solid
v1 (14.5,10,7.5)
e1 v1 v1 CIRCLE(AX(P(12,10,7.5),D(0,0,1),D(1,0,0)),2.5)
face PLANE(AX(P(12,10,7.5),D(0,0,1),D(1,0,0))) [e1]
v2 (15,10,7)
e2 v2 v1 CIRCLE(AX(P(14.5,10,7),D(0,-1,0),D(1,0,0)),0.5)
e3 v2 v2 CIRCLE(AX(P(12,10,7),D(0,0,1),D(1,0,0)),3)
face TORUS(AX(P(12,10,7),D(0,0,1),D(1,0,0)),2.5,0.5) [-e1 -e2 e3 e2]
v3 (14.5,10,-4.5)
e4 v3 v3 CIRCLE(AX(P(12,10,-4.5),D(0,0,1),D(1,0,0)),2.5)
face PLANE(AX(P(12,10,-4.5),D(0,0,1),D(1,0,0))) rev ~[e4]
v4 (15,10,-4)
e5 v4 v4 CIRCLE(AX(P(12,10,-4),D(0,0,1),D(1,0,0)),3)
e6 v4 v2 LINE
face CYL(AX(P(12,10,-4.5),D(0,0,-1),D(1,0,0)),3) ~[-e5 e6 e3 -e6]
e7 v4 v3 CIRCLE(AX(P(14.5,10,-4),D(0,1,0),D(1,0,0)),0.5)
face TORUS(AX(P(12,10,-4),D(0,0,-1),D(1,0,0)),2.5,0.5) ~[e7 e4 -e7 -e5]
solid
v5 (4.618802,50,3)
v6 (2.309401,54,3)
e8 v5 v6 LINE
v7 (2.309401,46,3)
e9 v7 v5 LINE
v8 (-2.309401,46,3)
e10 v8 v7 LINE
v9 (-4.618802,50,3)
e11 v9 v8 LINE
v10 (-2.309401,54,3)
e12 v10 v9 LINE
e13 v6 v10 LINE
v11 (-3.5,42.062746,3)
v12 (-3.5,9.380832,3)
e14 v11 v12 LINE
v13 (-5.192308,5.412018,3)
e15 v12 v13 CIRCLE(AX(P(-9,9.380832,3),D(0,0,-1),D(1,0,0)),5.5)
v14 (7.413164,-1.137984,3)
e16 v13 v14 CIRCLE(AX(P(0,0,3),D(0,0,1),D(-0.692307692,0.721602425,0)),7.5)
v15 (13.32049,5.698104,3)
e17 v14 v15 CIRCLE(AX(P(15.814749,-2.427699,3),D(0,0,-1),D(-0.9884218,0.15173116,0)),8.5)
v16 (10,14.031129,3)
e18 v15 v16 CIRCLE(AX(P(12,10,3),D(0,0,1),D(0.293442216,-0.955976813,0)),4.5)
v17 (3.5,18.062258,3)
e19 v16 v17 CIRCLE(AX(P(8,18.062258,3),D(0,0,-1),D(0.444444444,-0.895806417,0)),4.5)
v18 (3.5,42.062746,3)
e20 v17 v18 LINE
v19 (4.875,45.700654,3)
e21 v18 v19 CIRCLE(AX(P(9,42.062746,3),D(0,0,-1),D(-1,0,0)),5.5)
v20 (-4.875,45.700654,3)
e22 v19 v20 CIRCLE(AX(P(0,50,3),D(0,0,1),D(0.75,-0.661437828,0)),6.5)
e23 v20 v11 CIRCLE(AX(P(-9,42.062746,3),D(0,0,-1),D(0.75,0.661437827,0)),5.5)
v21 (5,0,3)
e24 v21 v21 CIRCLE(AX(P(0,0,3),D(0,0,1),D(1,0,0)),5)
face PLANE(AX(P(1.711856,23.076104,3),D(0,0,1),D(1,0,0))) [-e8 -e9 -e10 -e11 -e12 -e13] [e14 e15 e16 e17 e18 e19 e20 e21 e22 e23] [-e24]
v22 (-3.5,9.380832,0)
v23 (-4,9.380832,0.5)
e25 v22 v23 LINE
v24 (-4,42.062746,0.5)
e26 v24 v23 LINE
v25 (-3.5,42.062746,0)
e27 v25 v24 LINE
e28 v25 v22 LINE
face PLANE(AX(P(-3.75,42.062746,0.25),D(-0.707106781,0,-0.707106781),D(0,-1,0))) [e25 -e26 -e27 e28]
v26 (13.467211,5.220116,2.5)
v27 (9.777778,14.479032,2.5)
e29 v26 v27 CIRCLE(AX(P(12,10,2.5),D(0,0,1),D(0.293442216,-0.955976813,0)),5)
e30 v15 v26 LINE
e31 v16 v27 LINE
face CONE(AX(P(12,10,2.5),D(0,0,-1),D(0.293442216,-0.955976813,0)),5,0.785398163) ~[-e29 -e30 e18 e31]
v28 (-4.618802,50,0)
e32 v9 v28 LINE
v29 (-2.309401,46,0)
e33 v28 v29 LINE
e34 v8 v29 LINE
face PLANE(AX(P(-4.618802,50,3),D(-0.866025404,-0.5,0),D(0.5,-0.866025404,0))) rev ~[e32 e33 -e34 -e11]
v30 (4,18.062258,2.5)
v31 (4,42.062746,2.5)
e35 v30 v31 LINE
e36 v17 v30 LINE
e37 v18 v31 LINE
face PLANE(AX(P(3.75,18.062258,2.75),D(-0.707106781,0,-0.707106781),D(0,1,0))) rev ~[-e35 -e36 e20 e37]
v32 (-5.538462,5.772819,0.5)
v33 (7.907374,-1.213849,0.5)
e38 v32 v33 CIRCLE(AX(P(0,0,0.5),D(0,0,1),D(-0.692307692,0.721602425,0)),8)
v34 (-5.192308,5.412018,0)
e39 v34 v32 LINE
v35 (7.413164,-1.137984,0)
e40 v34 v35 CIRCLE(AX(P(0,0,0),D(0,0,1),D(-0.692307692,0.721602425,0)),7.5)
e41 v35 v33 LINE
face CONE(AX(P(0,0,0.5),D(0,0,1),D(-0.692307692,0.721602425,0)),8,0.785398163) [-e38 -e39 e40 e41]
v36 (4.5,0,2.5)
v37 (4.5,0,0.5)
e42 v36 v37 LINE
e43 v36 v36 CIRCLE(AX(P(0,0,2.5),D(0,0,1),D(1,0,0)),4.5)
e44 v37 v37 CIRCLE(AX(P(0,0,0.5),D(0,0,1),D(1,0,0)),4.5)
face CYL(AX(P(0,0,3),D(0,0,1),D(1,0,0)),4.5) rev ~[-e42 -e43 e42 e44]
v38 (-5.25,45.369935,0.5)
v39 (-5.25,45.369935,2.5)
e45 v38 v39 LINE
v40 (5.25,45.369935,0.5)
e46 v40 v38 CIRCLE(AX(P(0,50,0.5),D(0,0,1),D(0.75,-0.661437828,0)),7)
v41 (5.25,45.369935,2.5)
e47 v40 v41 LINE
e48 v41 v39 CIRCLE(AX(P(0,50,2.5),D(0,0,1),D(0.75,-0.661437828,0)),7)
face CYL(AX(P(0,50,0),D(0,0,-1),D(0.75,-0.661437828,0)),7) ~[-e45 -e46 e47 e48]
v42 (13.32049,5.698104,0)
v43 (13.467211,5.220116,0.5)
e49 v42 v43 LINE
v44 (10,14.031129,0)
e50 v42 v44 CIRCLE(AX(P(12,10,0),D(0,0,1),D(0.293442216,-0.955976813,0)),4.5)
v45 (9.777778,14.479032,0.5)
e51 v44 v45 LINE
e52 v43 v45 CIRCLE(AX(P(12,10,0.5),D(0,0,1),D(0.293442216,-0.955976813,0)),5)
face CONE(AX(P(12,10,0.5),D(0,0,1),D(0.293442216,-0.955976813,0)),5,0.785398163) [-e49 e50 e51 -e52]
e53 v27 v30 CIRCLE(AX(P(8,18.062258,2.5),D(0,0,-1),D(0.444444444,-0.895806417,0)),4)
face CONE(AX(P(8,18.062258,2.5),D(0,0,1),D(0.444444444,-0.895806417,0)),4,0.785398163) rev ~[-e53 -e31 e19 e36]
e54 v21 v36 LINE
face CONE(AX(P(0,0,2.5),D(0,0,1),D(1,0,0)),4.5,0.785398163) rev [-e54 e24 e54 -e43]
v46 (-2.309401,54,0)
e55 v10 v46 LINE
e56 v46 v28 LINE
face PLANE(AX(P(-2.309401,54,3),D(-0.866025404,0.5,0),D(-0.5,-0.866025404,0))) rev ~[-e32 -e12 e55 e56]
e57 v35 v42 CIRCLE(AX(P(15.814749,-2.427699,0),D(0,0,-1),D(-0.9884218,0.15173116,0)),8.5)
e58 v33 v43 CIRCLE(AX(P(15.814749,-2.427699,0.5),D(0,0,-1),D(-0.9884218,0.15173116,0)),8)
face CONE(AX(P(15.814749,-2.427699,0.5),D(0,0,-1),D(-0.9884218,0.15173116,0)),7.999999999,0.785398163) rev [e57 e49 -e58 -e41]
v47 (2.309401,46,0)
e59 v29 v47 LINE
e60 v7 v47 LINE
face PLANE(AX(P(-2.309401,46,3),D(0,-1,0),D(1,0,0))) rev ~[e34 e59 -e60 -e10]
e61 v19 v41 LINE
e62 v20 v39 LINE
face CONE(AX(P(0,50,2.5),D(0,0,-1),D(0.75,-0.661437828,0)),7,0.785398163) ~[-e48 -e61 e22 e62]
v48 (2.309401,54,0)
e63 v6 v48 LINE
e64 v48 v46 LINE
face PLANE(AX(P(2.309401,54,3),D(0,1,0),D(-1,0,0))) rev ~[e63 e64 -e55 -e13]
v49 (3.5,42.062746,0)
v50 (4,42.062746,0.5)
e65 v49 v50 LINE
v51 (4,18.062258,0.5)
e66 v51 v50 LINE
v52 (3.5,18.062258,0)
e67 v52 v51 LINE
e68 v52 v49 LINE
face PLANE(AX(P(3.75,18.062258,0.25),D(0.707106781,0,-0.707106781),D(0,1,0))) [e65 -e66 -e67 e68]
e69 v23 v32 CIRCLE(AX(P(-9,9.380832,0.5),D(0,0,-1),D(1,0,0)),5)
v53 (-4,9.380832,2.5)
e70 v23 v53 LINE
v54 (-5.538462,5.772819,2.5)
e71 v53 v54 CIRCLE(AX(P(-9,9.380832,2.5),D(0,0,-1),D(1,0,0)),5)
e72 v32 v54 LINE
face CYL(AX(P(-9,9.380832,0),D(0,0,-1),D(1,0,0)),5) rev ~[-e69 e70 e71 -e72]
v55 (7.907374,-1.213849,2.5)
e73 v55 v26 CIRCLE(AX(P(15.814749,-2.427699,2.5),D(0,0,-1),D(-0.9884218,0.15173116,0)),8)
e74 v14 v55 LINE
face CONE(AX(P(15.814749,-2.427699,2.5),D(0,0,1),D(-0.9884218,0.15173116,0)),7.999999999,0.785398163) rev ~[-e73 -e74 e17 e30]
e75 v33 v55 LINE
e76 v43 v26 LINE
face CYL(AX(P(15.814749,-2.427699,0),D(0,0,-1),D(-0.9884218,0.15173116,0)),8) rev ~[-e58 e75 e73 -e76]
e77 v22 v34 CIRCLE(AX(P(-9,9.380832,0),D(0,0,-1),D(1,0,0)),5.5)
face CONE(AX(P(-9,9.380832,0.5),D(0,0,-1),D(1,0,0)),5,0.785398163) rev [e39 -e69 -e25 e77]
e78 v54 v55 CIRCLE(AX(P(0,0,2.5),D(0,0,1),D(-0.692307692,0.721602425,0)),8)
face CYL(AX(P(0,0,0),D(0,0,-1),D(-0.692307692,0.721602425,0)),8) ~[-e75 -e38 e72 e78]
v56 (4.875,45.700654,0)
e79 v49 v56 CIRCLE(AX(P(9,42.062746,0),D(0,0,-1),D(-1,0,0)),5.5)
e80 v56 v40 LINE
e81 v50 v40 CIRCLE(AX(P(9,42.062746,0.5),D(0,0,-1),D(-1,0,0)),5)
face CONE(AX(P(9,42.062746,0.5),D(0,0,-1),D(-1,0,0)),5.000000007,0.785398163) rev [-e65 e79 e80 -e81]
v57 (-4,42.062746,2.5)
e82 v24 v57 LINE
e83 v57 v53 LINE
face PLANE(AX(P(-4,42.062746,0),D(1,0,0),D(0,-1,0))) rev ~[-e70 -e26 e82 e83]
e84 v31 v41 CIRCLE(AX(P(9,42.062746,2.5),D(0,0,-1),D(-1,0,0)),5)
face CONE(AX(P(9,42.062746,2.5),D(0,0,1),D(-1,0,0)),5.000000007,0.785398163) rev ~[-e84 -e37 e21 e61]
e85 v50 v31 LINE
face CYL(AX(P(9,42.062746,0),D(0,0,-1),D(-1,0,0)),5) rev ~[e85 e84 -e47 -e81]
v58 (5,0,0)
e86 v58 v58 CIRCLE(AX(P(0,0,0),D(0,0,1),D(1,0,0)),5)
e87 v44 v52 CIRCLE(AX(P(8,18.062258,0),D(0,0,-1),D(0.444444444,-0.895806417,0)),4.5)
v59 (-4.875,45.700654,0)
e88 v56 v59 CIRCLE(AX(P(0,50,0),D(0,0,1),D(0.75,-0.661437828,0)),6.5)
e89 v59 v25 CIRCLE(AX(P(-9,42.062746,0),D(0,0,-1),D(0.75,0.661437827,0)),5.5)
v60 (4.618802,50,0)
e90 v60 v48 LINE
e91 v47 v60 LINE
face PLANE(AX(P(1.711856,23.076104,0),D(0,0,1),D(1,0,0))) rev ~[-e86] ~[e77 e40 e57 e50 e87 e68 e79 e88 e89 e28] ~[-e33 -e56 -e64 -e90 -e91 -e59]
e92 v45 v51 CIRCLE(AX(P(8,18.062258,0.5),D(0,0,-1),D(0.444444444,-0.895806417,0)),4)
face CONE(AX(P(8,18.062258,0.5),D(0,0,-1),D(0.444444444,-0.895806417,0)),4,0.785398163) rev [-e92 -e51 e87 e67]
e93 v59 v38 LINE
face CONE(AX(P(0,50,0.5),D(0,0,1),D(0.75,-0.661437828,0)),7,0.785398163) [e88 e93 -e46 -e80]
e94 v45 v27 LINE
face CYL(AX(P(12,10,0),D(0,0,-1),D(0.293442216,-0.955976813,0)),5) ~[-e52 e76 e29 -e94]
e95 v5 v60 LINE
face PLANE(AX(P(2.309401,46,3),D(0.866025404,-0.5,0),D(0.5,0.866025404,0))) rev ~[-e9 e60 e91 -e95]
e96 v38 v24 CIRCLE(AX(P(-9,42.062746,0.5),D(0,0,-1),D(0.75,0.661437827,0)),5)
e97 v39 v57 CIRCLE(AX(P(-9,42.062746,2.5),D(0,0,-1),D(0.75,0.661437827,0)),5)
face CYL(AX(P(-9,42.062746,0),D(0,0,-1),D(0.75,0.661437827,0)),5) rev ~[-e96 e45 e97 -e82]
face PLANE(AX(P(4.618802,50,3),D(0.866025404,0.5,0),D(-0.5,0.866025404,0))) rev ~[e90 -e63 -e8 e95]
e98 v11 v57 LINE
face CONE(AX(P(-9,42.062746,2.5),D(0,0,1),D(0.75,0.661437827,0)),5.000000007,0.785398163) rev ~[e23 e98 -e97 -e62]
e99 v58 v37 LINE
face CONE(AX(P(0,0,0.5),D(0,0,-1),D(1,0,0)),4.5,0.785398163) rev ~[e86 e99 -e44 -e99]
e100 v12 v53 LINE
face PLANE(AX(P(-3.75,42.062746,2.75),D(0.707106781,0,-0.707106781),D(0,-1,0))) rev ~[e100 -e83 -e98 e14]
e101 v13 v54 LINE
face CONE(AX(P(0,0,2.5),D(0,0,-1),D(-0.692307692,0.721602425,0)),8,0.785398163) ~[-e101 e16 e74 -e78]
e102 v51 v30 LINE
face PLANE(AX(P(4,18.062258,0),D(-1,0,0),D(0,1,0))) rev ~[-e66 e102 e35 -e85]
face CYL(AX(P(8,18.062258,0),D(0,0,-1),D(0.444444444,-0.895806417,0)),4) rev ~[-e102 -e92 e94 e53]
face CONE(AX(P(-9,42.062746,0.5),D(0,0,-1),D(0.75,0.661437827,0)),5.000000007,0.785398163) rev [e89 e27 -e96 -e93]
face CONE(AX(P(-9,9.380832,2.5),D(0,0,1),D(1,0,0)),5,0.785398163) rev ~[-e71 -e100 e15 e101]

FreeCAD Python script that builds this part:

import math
import FreeCAD as App
import Part
import Sketcher
from FreeCAD import Vector
Q = App.Units.Quantity


def edges_at(feature, points):
    """Names of the edges that pass closest to the given points."""
    edges = feature.Shape.Edges
    near = lambda p: min(range(len(edges)), key=lambda i: edges[i].distToShape(Part.Vertex(*p))[0])
    return sorted({f"Edge{near(p) + 1}" for p in points})


def add_polygon(sketch, points):
    """Adds a closed chain of lines whose ends are joined by coincident constraints."""
    first, n = sketch.GeometryCount, len(points)
    for a, b in zip(points, points[1:] + points[:1]):
        sketch.addGeometry(Part.LineSegment(App.Vector(*a, 0), App.Vector(*b, 0)), False)
    for i in range(n):
        sketch.addConstraint(Sketcher.Constraint("Coincident", first + i, 2, first + (i + 1) % n, 1))

doc = App.newDocument("Part")
body = doc.addObject("PartDesign::Body", "Body")

# Sketch on XY plane
sketch1 = body.newObject("Sketcher::SketchObject", "Sketch")
sketch1.AttachmentSupport = (doc.getObject("XY_Plane"), [""])
sketch1.MapMode = "FlatFace"
sketch1.addGeometry([
    Part.LineSegment(Vector(-4, 42.1, 0), Vector(-4, 9.4, 0)),  # 0
    Part.ArcOfCircle(Part.Circle(Vector(-9, 9.4, 0), Vector(0, 0, 1), 5), math.radians(-46), math.radians(0)),  # 1
    Part.ArcOfCircle(Part.Circle(Vector(0, 0, 0), Vector(0, 0, 1), 8), math.radians(134), math.radians(351)),  # 2
    Part.ArcOfCircle(Part.Circle(Vector(15.8, -2.4, 0), Vector(0, 0, 1), 8), math.radians(107), math.radians(171)),  # 3
    Part.ArcOfCircle(Part.Circle(Vector(12, 10, 0), Vector(0, 0, 1), 5), math.radians(-73), math.radians(116)),  # 4
    Part.ArcOfCircle(Part.Circle(Vector(8, 18.1, 0), Vector(0, 0, 1), 4), math.radians(180), math.radians(296)),  # 5
    Part.LineSegment(Vector(4, 18.1, 0), Vector(4, 42.1, 0)),  # 6
    Part.ArcOfCircle(Part.Circle(Vector(9, 42.1, 0), Vector(0, 0, 1), 5), math.radians(139), math.radians(180)),  # 7
    Part.ArcOfCircle(Part.Circle(Vector(0, 50, 0), Vector(0, 0, 1), 7), math.radians(-41), math.radians(221)),  # 8
    Part.ArcOfCircle(Part.Circle(Vector(-9, 42.1, 0), Vector(0, 0, 1), 5), math.radians(0), math.radians(41)),  # 9
], False)
sketch1.addConstraint([
    Sketcher.Constraint("Tangent", 0, 2, 1, 2),
    Sketcher.Constraint("Tangent", 1, 1, 2, 1),
    Sketcher.Constraint("Tangent", 2, 2, 3, 2),
    Sketcher.Constraint("Tangent", 3, 1, 4, 1),
    Sketcher.Constraint("Tangent", 4, 2, 5, 2),
    Sketcher.Constraint("Tangent", 5, 1, 6, 1),
    Sketcher.Constraint("Tangent", 6, 2, 7, 2),
    Sketcher.Constraint("Tangent", 7, 1, 8, 1),
    Sketcher.Constraint("Tangent", 8, 2, 9, 2),
    Sketcher.Constraint("Tangent", 9, 1, 0, 1),
    Sketcher.Constraint("Vertical", 0),
    Sketcher.Constraint("Vertical", 6),
    Sketcher.Constraint("Coincident", 2, 3, -1, 1),
    Sketcher.Constraint("Equal", 2, 3),
    Sketcher.Constraint("Equal", 1, 4),
    Sketcher.Constraint("Equal", 4, 7),
    Sketcher.Constraint("Equal", 7, 9),
    Sketcher.Constraint("Symmetric", 7, 3, 9, 3, -2),
    Sketcher.Constraint("Radius", 1, 5.0),
    Sketcher.Constraint("Radius", 2, 8.0),
    Sketcher.Constraint("Radius", 5, 4.0),
    Sketcher.Constraint("Radius", 8, 7.0),
    Sketcher.Constraint("DistanceX", 1, 3, -1, 1, 9.0),
    Sketcher.Constraint("DistanceX", -1, 1, 4, 3, 12.0),
    Sketcher.Constraint("DistanceY", -1, 1, 4, 3, 10.0),
    Sketcher.Constraint("DistanceY", -1, 1, 8, 3, 50.0),
])
pad1 = body.newObject("PartDesign::Pad", "Pad")
pad1.Profile = sketch1
pad1.Length = 3

# Sketch on XY plane
sketch2 = body.newObject("Sketcher::SketchObject", "Sketch001")
sketch2.AttachmentSupport = (doc.getObject("XY_Plane"), [""])
sketch2.MapMode = "FlatFace"
sketch2.AttachmentOffset = App.Placement(Vector(0, 0, 3), App.Rotation())
sketch2.addGeometry(Part.Circle(Vector(0, 0, 0), Vector(0, 0, 1), 4.5), False)  # 0
add_polygon(sketch2, [(4.6, 50), (2.3, 54), (-2.3, 54), (-4.6, 50), (-2.3, 46), (2.3, 46)])  # lines 1-6
sketch2.addConstraint([
    Sketcher.Constraint("Horizontal", 2),
    Sketcher.Constraint("Horizontal", 5),
    Sketcher.Constraint("Coincident", 0, 3, -1, 1),
    Sketcher.Constraint("Symmetric", 3, 2, 6, 2, -2),
    Sketcher.Constraint("Parallel", 1, 4),
    Sketcher.Constraint("Parallel", 3, 6),
    Sketcher.Constraint("Vertical", 2, 2, 4, 2),
    Sketcher.Constraint("Vertical", 1, 2, 5, 2),
    Sketcher.Constraint("Diameter", 0, 9.0),
    Sketcher.Constraint("Angle", 1, Q("120 deg")),
    Sketcher.Constraint("DistanceY", -1, 1, 1, 2, 54.0),
    Sketcher.Constraint("DistanceY", -1, 1, 3, 2, 50.0),
    Sketcher.Constraint("DistanceX", -1, 1, 1, 2, 2.309401),
])
pocket1 = body.newObject("PartDesign::Pocket", "Pocket")
pocket1.Profile = sketch2
pocket1.Length = 3
doc.recompute()

chamfer = body.newObject("PartDesign::Chamfer", "Chamfer")
chamfer.Base = (pocket1, edges_at(pocket1, [
    (9.762, 2.803, 3),
    (0, 57, 0),
    (4.323, 43.831, 0),
    (4, 30.063, 0),
    (5.892, 14.663, 0),
    (16.645, 11.851, 0),
    (9.762, 2.803, 0),
    (-3.689, -7.099, 0),
    (-4.401, 7.42, 0),
    (16.645, 11.851, 3),
    (5.892, 14.663, 3),
    (4, 30.063, 3),
    (4.323, 43.831, 3),
    (0, 57, 3),
    (-4.323, 43.831, 3),
    (-4, 25.722, 3),
    (-4.401, 7.42, 3),
    (-4.5, 0, 0),
    (-4.5, 0, 3),
    (-3.689, -7.099, 3),
    (-4, 25.722, 0),
    (-4.323, 43.831, 0),
]))
chamfer.Size = 0.5
body2 = doc.addObject("PartDesign::Body", "Body001")

# Sketch on XY plane
sketch3 = body2.newObject("Sketcher::SketchObject", "Sketch002")
sketch3.AttachmentSupport = (doc.getObject("XY_Plane001"), [""])
sketch3.MapMode = "FlatFace"
sketch3.AttachmentOffset = App.Placement(Vector(0, 0, 3), App.Rotation())
sketch3.addGeometry(Part.Circle(Vector(12, 10, 0), Vector(0, 0, 1), 3), False)
sketch3.addConstraint([
    Sketcher.Constraint("Diameter", 0, 6.0),
    Sketcher.Constraint("DistanceX", -1, 1, 0, 3, 12.0),
    Sketcher.Constraint("DistanceY", -1, 1, 0, 3, 10.0),
])
pad2 = body2.newObject("PartDesign::Pad", "Pad001")
pad2.Profile = sketch3
pad2.Type = "TwoLengths"
pad2.Length = 4.5
pad2.Length2 = 7.5
doc.recompute()

fillet = body2.newObject("PartDesign::Fillet", "Fillet")
fillet.Base = (pad2, edges_at(pad2, [(9, 10, -4.5), (9, 10, 7.5)]))
fillet.Radius = 0.5

doc.recompute()
